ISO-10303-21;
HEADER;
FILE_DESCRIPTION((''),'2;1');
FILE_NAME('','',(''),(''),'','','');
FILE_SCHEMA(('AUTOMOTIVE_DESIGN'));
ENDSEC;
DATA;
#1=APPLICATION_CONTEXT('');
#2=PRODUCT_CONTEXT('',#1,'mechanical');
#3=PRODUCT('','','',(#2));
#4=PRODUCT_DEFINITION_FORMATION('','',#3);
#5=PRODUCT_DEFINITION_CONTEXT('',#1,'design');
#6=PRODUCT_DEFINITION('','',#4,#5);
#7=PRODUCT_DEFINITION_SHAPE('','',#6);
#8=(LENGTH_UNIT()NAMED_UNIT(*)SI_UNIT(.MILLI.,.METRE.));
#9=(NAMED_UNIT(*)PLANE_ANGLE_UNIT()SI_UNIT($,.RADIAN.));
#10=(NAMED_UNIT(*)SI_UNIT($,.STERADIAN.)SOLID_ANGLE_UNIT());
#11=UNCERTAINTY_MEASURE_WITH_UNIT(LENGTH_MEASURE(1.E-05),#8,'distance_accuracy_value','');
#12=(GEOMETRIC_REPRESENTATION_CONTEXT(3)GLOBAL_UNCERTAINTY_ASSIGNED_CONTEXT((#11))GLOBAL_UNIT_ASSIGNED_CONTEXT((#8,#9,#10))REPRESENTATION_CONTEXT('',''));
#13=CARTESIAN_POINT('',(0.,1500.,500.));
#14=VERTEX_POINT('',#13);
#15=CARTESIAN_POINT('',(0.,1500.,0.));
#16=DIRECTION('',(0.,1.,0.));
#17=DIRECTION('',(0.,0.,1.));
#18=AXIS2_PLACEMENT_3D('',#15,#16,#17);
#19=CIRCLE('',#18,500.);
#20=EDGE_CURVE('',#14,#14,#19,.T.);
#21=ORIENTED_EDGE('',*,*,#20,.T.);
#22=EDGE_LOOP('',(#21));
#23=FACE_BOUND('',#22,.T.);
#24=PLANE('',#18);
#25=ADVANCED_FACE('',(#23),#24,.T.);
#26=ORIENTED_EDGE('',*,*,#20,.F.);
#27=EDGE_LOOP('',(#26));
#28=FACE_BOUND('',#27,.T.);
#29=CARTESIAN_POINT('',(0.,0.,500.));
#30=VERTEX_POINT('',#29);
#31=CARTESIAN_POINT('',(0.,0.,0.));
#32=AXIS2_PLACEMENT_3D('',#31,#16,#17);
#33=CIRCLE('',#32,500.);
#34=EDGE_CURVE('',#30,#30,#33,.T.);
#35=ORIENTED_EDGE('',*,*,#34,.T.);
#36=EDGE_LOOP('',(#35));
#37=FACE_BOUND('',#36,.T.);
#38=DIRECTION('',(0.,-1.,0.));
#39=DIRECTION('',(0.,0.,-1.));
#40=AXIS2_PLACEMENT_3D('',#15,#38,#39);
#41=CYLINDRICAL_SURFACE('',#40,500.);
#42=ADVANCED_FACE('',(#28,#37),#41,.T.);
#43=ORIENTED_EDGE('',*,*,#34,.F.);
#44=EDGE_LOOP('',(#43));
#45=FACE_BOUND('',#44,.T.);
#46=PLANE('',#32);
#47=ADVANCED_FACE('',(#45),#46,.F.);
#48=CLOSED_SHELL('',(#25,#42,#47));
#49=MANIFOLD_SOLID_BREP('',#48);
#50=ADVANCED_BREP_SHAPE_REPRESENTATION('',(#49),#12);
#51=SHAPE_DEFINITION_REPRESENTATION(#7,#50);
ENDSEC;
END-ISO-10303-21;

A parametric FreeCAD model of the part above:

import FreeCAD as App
import Part
import Sketcher

V = App.Vector

doc = App.newDocument("Part")
body = doc.addObject("PartDesign::Body", "Body")

# Sketch on XZ plane
sketch1 = body.newObject("Sketcher::SketchObject", "Sketch")
sketch1.AttachmentSupport = (doc.getObject("XZ_Plane"), [""])
sketch1.MapMode = "FlatFace"
sketch1.addGeometry(Part.Circle(V(0, 0, 0), V(0, 0, 1), 500), False)
sketch1.addConstraint(Sketcher.Constraint("Coincident", 0, 3, -1, 1))
sketch1.addConstraint(Sketcher.Constraint("Diameter", 0, 1000.0))
pad1 = body.newObject("PartDesign::Pad", "Pad")
pad1.Profile = sketch1
pad1.Length = 1500
pad1.Reversed = True

doc.recompute()
